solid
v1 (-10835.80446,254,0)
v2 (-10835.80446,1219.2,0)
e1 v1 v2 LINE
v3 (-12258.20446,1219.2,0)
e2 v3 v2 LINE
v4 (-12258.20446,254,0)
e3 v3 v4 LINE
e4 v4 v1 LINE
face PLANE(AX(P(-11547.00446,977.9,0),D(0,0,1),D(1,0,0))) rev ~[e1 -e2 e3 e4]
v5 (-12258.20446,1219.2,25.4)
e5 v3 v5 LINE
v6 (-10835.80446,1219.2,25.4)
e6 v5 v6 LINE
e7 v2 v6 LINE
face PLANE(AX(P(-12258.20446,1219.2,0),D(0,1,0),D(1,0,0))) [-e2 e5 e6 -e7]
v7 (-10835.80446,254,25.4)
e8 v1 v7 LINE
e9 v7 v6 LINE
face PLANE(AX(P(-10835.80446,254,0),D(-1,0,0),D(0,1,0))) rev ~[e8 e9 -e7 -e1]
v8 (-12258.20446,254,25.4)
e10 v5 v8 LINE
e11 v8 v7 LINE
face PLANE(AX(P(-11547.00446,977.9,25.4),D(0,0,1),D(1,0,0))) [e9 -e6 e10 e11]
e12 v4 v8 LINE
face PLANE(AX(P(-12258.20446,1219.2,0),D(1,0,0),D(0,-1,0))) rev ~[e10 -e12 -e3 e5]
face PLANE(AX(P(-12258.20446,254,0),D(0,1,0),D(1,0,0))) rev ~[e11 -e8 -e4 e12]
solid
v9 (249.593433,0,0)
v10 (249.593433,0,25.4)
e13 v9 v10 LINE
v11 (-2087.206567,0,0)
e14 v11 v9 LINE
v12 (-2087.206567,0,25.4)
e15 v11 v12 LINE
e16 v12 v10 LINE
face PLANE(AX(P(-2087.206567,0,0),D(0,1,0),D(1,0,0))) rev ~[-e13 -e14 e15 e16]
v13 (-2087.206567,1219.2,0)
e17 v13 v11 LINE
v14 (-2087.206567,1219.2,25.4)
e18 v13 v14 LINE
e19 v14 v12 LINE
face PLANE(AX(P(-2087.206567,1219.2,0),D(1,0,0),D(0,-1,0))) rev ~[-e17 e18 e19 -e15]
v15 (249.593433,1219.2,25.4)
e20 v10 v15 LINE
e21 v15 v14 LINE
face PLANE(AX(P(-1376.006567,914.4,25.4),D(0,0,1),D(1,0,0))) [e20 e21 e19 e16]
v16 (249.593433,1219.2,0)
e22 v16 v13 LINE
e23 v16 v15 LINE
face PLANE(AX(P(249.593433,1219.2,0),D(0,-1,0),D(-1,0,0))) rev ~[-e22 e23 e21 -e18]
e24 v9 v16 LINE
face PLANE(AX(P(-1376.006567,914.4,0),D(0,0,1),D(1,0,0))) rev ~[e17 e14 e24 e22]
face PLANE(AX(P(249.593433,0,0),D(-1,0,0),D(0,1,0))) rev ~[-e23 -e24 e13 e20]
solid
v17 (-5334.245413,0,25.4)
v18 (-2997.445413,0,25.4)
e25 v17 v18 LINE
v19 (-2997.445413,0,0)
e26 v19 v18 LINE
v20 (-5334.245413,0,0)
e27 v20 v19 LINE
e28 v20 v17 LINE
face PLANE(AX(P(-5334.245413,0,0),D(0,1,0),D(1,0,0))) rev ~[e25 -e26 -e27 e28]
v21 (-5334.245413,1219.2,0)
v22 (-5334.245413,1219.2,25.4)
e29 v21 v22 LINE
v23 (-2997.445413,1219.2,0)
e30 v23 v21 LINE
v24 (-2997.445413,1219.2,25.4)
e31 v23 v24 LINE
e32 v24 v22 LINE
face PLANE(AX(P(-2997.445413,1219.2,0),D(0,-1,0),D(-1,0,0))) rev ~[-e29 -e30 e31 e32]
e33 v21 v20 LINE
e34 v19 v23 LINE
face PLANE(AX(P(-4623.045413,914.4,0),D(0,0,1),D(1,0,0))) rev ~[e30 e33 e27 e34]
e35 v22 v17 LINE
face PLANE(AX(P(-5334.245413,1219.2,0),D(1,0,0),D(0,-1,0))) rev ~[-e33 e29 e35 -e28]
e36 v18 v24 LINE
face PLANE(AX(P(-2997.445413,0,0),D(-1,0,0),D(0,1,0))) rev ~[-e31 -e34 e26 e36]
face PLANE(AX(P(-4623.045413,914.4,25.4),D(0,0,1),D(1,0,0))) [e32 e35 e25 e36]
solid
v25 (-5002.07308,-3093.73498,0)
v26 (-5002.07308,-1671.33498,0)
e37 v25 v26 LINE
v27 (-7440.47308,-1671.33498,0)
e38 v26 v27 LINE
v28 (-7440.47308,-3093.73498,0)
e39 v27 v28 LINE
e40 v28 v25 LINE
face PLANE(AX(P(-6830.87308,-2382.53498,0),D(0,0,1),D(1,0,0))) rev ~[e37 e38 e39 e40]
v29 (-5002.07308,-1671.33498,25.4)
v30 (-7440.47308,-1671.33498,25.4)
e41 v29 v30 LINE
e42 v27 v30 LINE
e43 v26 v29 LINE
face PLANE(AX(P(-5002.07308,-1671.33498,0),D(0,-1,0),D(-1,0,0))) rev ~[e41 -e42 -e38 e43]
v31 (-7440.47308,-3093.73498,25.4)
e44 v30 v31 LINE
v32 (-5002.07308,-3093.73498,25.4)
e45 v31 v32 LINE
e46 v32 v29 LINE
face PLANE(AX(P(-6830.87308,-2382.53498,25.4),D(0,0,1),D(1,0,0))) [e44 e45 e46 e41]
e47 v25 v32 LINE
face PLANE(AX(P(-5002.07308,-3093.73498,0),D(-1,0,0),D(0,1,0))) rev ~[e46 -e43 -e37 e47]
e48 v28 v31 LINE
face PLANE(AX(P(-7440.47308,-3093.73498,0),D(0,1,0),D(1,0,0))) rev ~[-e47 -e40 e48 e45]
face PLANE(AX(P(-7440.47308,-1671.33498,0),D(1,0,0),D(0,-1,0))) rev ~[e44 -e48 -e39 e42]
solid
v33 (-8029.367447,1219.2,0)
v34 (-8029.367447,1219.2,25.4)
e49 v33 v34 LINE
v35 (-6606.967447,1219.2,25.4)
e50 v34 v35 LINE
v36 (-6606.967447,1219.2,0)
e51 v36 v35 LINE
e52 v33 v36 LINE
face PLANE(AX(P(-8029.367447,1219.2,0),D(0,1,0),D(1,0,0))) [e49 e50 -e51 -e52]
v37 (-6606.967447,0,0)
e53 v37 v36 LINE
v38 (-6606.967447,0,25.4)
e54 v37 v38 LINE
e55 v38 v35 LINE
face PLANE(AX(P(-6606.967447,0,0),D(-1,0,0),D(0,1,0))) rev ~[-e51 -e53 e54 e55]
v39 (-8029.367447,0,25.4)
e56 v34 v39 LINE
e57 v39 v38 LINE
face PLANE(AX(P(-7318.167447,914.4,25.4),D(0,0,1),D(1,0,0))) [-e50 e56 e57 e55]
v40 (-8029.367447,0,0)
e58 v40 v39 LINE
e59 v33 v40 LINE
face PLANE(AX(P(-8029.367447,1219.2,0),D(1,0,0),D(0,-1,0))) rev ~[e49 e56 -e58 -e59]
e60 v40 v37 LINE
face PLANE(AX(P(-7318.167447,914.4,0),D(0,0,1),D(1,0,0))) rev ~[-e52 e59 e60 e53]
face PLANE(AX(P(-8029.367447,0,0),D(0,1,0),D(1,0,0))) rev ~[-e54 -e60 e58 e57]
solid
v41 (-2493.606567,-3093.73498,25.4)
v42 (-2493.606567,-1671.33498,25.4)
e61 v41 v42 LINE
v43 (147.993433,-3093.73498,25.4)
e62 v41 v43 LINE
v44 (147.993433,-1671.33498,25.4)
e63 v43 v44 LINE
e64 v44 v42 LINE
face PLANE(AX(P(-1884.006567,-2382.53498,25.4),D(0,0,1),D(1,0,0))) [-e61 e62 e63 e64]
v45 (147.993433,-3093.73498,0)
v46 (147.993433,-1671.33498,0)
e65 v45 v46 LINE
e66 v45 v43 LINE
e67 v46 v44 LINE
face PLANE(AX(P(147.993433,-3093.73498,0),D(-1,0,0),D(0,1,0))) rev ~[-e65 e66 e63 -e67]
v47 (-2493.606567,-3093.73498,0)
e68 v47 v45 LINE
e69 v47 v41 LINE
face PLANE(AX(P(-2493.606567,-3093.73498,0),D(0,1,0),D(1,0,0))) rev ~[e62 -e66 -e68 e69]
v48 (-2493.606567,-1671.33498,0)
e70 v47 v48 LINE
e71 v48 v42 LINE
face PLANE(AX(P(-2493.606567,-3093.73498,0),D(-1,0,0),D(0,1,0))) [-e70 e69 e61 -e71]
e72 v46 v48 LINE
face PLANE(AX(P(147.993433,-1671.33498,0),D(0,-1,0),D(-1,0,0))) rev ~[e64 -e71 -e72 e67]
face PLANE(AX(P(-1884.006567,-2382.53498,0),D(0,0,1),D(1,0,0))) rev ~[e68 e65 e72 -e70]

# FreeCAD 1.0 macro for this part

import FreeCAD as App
import Part
import Sketcher
Q = App.Units.Quantity

doc = App.newDocument("Part")
body = doc.addObject("PartDesign::Body", "Body")
body.AllowCompound = True

# Sketch on XY plane
sketch1 = body.newObject("Sketcher::SketchObject", "Sketch")
sketch1.AttachmentSupport = (doc.getObject("XY_Plane"), [""])
sketch1.MapMode = "FlatFace"
sketch1.addGeometry([
    Part.LineSegment(App.Vector(-2494, -1671, 0), App.Vector(-2494, -3094, 0)),  # 0
    Part.LineSegment(App.Vector(-2494, -3094, 0), App.Vector(148, -3094, 0)),  # 1
    Part.LineSegment(App.Vector(148, -3094, 0), App.Vector(148, -1671, 0)),  # 2
    Part.LineSegment(App.Vector(148, -1671, 0), App.Vector(-2494, -1671, 0)),  # 3
    Part.LineSegment(App.Vector(-2087, 1219, 0), App.Vector(-2087, 0, 0)),  # 4
    Part.LineSegment(App.Vector(-2087, 0, 0), App.Vector(250, 0, 0)),  # 5
    Part.LineSegment(App.Vector(250, 0, 0), App.Vector(250, 1219, 0)),  # 6
    Part.LineSegment(App.Vector(250, 1219, 0), App.Vector(-2087, 1219, 0)),  # 7
    Part.LineSegment(App.Vector(-5334, 1219, 0), App.Vector(-5334, 0, 0)),  # 8
    Part.LineSegment(App.Vector(-5334, 0, 0), App.Vector(-2997, 0, 0)),  # 9
    Part.LineSegment(App.Vector(-2997, 0, 0), App.Vector(-2997, 1219, 0)),  # 10
    Part.LineSegment(App.Vector(-2997, 1219, 0), App.Vector(-5334, 1219, 0)),  # 11
    Part.LineSegment(App.Vector(-7440, -1671, 0), App.Vector(-7440, -3094, 0)),  # 12
    Part.LineSegment(App.Vector(-7440, -3094, 0), App.Vector(-5002, -3094, 0)),  # 13
    Part.LineSegment(App.Vector(-5002, -3094, 0), App.Vector(-5002, -1671, 0)),  # 14
    Part.LineSegment(App.Vector(-5002, -1671, 0), App.Vector(-7440, -1671, 0)),  # 15
    Part.LineSegment(App.Vector(-8029, 1219, 0), App.Vector(-8029, 0, 0)),  # 16
    Part.LineSegment(App.Vector(-8029, 0, 0), App.Vector(-6607, 0, 0)),  # 17
    Part.LineSegment(App.Vector(-6607, 0, 0), App.Vector(-6607, 1219, 0)),  # 18
    Part.LineSegment(App.Vector(-6607, 1219, 0), App.Vector(-8029, 1219, 0)),  # 19
    Part.LineSegment(App.Vector(-12258, 1219, 0), App.Vector(-12258, 254, 0)),  # 20
    Part.LineSegment(App.Vector(-12258, 254, 0), App.Vector(-10836, 254, 0)),  # 21
    Part.LineSegment(App.Vector(-10836, 254, 0), App.Vector(-10836, 1219, 0)),  # 22
    Part.LineSegment(App.Vector(-10836, 1219, 0), App.Vector(-12258, 1219, 0)),  # 23
], False)
sketch1.addConstraint([
    Sketcher.Constraint("Coincident", 0, 2, 1, 1),
    Sketcher.Constraint("Coincident", 1, 2, 2, 1),
    Sketcher.Constraint("Coincident", 2, 2, 3, 1),
    Sketcher.Constraint("Coincident", 3, 2, 0, 1),
    Sketcher.Constraint("Coincident", 4, 2, 5, 1),
    Sketcher.Constraint("Coincident", 5, 2, 6, 1),
    Sketcher.Constraint("Coincident", 6, 2, 7, 1),
    Sketcher.Constraint("Coincident", 7, 2, 4, 1),
    Sketcher.Constraint("Coincident", 8, 2, 9, 1),
    Sketcher.Constraint("Coincident", 9, 2, 10, 1),
    Sketcher.Constraint("Coincident", 10, 2, 11, 1),
    Sketcher.Constraint("Coincident", 11, 2, 8, 1),
    Sketcher.Constraint("Coincident", 12, 2, 13, 1),
    Sketcher.Constraint("Coincident", 13, 2, 14, 1),
    Sketcher.Constraint("Coincident", 14, 2, 15, 1),
    Sketcher.Constraint("Coincident", 15, 2, 12, 1),
    Sketcher.Constraint("Coincident", 16, 2, 17, 1),
    Sketcher.Constraint("Coincident", 17, 2, 18, 1),
    Sketcher.Constraint("Coincident", 18, 2, 19, 1),
    Sketcher.Constraint("Coincident", 19, 2, 16, 1),
    Sketcher.Constraint("Coincident", 20, 2, 21, 1),
    Sketcher.Constraint("Coincident", 21, 2, 22, 1),
    Sketcher.Constraint("Coincident", 22, 2, 23, 1),
    Sketcher.Constraint("Coincident", 23, 2, 20, 1),
    Sketcher.Constraint("Vertical", 0),
    Sketcher.Constraint("Horizontal", 1),
    Sketcher.Constraint("Vertical", 2),
    Sketcher.Constraint("Horizontal", 3),
    Sketcher.Constraint("Vertical", 4),
    Sketcher.Constraint("Horizontal", 5),
    Sketcher.Constraint("Vertical", 6),
    Sketcher.Constraint("Horizontal", 7),
    Sketcher.Constraint("Vertical", 8),
    Sketcher.Constraint("Horizontal", 9),
    Sketcher.Constraint("Vertical", 10),
    Sketcher.Constraint("Horizontal", 11),
    Sketcher.Constraint("Vertical", 12),
    Sketcher.Constraint("Horizontal", 13),
    Sketcher.Constraint("Vertical", 14),
    Sketcher.Constraint("Horizontal", 15),
    Sketcher.Constraint("Vertical", 16),
    Sketcher.Constraint("Horizontal", 17),
    Sketcher.Constraint("Vertical", 18),
    Sketcher.Constraint("Horizontal", 19),
    Sketcher.Constraint("Vertical", 20),
    Sketcher.Constraint("Horizontal", 21),
    Sketcher.Constraint("Vertical", 22),
    Sketcher.Constraint("Horizontal", 23),
    Sketcher.Constraint("PointOnObject", 4, 2, -1),
    Sketcher.Constraint("PointOnObject", 8, 2, -1),
    Sketcher.Constraint("PointOnObject", 16, 2, -1),
    Sketcher.Constraint("Horizontal", 7, 2, 10, 2),
    Sketcher.Constraint("Horizontal", 1, 2, 12, 2),
    Sketcher.Constraint("Horizontal", 3, 2, 14, 2),
    Sketcher.Constraint("Horizontal", 11, 2, 18, 2),
    Sketcher.Constraint("Horizontal", 19, 2, 22, 2),
    Sketcher.Constraint("Equal", 7, 9),
    Sketcher.Constraint("Equal", 19, 21),
    Sketcher.Constraint("Equal", 23, 0),
    Sketcher.Constraint("DistanceX", 1, 1, 1, 2, Q("104 in")),
    Sketcher.Constraint("DistanceX", 5, 1, 5, 2, Q("92 in")),
    Sketcher.Constraint("DistanceX", 13, 1, 13, 2, Q("96 in")),
    Sketcher.Constraint("DistanceX", 17, 1, 17, 2, Q("56 in")),
    Sketcher.Constraint("DistanceY", 4, 2, 4, 1, Q("48 in")),
    Sketcher.Constraint("DistanceY", 20, 2, 20, 1, Q("38 in")),
    Sketcher.Constraint("DistanceX", 3, 2, 4, 2, Q("16 in")),
    Sketcher.Constraint("DistanceY", 0, 2, -1, 1, Q("3093.73498 mm")),
    Sketcher.Constraint("DistanceX", 12, 2, -1, 1, Q("7440.47308 mm")),
    Sketcher.Constraint("DistanceX", 20, 2, -1, 1, Q("12258.20446 mm")),
    Sketcher.Constraint("DistanceX", 0, 2, -1, 1, Q("2493.606567 mm")),
    Sketcher.Constraint("DistanceX", 8, 2, -1, 1, Q("5334.245413 mm")),
    Sketcher.Constraint("DistanceX", 16, 2, -1, 1, Q("8029.367447 mm")),
])
pad1 = body.newObject("PartDesign::Pad", "Pad")
pad1.Profile = sketch1
pad1.Length = Q("1 in")

doc.recompute()
